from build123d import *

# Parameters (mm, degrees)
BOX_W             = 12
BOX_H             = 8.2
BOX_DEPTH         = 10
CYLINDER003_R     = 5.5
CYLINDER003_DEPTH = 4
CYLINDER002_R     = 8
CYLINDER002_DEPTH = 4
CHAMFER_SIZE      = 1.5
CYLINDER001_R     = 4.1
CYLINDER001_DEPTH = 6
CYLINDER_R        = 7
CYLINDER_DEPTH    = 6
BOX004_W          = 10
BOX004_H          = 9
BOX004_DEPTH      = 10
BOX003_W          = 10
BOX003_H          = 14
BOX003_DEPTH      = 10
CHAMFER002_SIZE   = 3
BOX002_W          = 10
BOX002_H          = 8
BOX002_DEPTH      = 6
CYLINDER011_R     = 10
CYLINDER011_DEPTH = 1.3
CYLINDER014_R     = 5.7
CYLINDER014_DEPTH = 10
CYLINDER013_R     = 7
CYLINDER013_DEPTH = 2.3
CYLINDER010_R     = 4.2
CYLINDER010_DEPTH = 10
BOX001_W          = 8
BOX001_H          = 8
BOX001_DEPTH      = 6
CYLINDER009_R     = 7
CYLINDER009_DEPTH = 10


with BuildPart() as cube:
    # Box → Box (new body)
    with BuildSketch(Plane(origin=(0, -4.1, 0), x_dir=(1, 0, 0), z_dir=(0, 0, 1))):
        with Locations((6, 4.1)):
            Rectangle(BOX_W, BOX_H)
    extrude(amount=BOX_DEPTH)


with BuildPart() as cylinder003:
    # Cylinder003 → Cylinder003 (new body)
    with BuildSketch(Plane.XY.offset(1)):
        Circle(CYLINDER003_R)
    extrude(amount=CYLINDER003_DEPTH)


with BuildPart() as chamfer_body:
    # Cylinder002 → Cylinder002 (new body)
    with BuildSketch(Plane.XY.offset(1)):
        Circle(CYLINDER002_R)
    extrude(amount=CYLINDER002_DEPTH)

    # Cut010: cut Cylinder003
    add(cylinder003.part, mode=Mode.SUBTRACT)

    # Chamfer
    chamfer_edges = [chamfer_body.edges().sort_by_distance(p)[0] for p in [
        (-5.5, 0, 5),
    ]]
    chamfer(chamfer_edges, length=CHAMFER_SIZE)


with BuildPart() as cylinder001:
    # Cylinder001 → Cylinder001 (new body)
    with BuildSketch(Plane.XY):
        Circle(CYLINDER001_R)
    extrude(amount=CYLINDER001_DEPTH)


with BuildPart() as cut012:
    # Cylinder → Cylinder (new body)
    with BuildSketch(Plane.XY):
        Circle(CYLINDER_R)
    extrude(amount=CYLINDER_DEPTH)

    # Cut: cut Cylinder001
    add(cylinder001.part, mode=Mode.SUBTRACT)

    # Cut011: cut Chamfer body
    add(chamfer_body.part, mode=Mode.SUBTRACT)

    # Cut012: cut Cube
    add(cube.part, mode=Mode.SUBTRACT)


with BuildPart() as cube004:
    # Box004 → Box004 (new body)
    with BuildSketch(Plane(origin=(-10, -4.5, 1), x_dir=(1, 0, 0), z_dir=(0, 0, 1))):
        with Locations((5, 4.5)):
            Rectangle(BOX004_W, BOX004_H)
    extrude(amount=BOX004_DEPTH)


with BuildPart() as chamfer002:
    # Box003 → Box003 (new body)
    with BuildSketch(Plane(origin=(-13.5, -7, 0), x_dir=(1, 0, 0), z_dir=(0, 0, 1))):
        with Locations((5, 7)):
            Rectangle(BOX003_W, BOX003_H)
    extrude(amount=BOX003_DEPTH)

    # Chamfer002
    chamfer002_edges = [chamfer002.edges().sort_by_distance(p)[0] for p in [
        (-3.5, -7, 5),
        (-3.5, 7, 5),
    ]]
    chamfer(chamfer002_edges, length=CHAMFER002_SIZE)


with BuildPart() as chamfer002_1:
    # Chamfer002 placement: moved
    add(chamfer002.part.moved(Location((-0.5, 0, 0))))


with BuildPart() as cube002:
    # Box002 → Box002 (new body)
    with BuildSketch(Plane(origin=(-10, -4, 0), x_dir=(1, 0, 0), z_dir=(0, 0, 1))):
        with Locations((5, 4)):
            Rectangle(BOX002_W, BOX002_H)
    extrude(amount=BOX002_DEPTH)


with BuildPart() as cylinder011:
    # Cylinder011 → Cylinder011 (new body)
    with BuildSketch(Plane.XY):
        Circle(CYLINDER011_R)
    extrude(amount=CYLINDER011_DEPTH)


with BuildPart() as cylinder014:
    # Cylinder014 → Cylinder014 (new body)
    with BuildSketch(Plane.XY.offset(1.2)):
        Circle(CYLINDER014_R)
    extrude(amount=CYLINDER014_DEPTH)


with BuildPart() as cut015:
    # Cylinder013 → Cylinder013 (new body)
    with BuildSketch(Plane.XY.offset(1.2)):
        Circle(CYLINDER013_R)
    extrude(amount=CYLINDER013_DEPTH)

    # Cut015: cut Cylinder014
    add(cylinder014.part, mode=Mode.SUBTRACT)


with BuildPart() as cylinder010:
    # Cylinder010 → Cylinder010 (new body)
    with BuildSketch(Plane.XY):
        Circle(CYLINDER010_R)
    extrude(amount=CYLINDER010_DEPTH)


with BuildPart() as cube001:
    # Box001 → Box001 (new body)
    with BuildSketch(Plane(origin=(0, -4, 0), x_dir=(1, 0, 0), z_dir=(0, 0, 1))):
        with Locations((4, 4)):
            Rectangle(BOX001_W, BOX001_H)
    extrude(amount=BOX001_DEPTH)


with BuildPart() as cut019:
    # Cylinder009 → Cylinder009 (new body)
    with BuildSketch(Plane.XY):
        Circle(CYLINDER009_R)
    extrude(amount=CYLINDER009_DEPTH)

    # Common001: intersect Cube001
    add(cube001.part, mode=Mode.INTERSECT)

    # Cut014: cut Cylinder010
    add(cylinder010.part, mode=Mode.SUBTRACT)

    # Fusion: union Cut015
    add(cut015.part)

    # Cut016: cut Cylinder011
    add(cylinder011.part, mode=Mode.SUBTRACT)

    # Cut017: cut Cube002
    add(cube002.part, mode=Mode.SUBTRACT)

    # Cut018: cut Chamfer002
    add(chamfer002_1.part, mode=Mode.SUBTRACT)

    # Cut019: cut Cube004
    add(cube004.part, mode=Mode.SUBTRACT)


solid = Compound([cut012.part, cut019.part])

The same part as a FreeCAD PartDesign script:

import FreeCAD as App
import Part
import Sketcher

V = App.Vector
Q = App.Units.Quantity


def edges_at(feature, points):
    """Names of the edges that pass closest to the given points."""
    edges = feature.Shape.Edges
    near = lambda p: min(range(len(edges)), key=lambda i: edges[i].distToShape(Part.Vertex(*p))[0])
    return sorted({f"Edge{near(p) + 1}" for p in points})


def add_polygon(sketch, points):
    """Adds a closed chain of lines whose ends are joined by coincident constraints."""
    first, n = sketch.GeometryCount, len(points)
    for a, b in zip(points, points[1:] + points[:1]):
        sketch.addGeometry(Part.LineSegment(App.Vector(*a, 0), App.Vector(*b, 0)), False)
    for i in range(n):
        sketch.addConstraint(Sketcher.Constraint("Coincident", first + i, 2, first + (i + 1) % n, 1))

doc = App.newDocument("Part")
body = doc.addObject("PartDesign::Body", "Body")

# Sketch on XY plane
sketch1 = doc.addObject("Sketcher::SketchObject", "Sketch")
body.addObject(sketch1)
sketch1.AttachmentSupport = (doc.XY_Plane, [""])
sketch1.MapMode = "FlatFace"
add_polygon(sketch1, [(0, 4), (0, -4), (12, -4), (12, 4)])  # lines 0-3
sketch1.addConstraint(Sketcher.Constraint("Vertical", 0))
sketch1.addConstraint(Sketcher.Constraint("Horizontal", 1))
sketch1.addConstraint(Sketcher.Constraint("Vertical", 2))
sketch1.addConstraint(Sketcher.Constraint("Horizontal", 3))
sketch1.addConstraint(Sketcher.Constraint("Symmetric", 0, 2, 3, 2, -1, 1))
sketch1.addConstraint(Sketcher.Constraint("DistanceX", 1, 1, 1, 2, Q("12 mm")))
sketch1.addConstraint(Sketcher.Constraint("DistanceY", 0, 2, 0, 1, Q("8.2 mm")))
pad1 = doc.addObject("PartDesign::Pad", "Pad")
body.addObject(pad1)
pad1.Profile = sketch1
pad1.Length = 10
body2 = doc.addObject("PartDesign::Body", "Body001")

# Sketch on XY plane
sketch2 = doc.addObject("Sketcher::SketchObject", "Sketch001")
body2.addObject(sketch2)
sketch2.AttachmentSupport = (doc.getObject("XY_Plane001"), [""])
sketch2.MapMode = "FlatFace"
sketch2.AttachmentOffset = App.Placement(V(0, 0, 1), App.Rotation())
sketch2.addGeometry(Part.Circle(V(0, 0, 0), V(0, 0, 1), 6), False)
sketch2.addConstraint(Sketcher.Constraint("Coincident", 0, 3, -1, 1))
sketch2.addConstraint(Sketcher.Constraint("Diameter", 0, Q("11 mm")))
pad2 = doc.addObject("PartDesign::Pad", "Pad001")
body2.addObject(pad2)
pad2.Profile = sketch2
pad2.Length = 4
body3 = doc.addObject("PartDesign::Body", "Body002")

# Sketch on XY plane
sketch3 = doc.addObject("Sketcher::SketchObject", "Sketch002")
body3.addObject(sketch3)
sketch3.AttachmentSupport = (doc.getObject("XY_Plane002"), [""])
sketch3.MapMode = "FlatFace"
sketch3.AttachmentOffset = App.Placement(V(0, 0, 1), App.Rotation())
sketch3.addGeometry(Part.Circle(V(0, 0, 0), V(0, 0, 1), 8), False)
sketch3.addConstraint(Sketcher.Constraint("Coincident", 0, 3, -1, 1))
sketch3.addConstraint(Sketcher.Constraint("Diameter", 0, Q("16 mm")))
pad3 = doc.addObject("PartDesign::Pad", "Pad002")
body3.addObject(pad3)
pad3.Profile = sketch3
pad3.Length = 4
doc.recompute()

boolean = doc.addObject("PartDesign::Boolean", "Boolean")
body3.addObject(boolean)
boolean.Type = "Cut"
boolean.addObjects([body2])
doc.recompute()

chamfer = doc.addObject("PartDesign::Chamfer", "Chamfer")
body3.addObject(chamfer)
chamfer.Base = (boolean, edges_at(boolean, [(-5.5, 0, 5)]))
chamfer.Size = 1.5
body4 = doc.addObject("PartDesign::Body", "Body003")

# Sketch on XY plane
sketch4 = doc.addObject("Sketcher::SketchObject", "Sketch003")
body4.addObject(sketch4)
sketch4.AttachmentSupport = (doc.getObject("XY_Plane003"), [""])
sketch4.MapMode = "FlatFace"
sketch4.addGeometry(Part.Circle(V(0, 0, 0), V(0, 0, 1), 4.1), False)
sketch4.addConstraint(Sketcher.Constraint("Coincident", 0, 3, -1, 1))
sketch4.addConstraint(Sketcher.Constraint("Diameter", 0, Q("8.2 mm")))
pad4 = doc.addObject("PartDesign::Pad", "Pad003")
body4.addObject(pad4)
pad4.Profile = sketch4
pad4.Length = 6
body5 = doc.addObject("PartDesign::Body", "Body004")

# Sketch on XY plane
sketch5 = doc.addObject("Sketcher::SketchObject", "Sketch004")
body5.addObject(sketch5)
sketch5.AttachmentSupport = (doc.getObject("XY_Plane004"), [""])
sketch5.MapMode = "FlatFace"
sketch5.addGeometry(Part.Circle(V(0, 0, 0), V(0, 0, 1), 7), False)
sketch5.addConstraint(Sketcher.Constraint("Coincident", 0, 3, -1, 1))
sketch5.addConstraint(Sketcher.Constraint("Diameter", 0, Q("14 mm")))
pad5 = doc.addObject("PartDesign::Pad", "Pad004")
body5.addObject(pad5)
pad5.Profile = sketch5
pad5.Length = 6
doc.recompute()

boolean2 = doc.addObject("PartDesign::Boolean", "Boolean001")
body5.addObject(boolean2)
boolean2.Type = "Cut"
boolean2.addObjects([body4])
doc.recompute()

boolean3 = doc.addObject("PartDesign::Boolean", "Boolean002")
body5.addObject(boolean3)
boolean3.Type = "Cut"
boolean3.addObjects([body3])
doc.recompute()

boolean4 = doc.addObject("PartDesign::Boolean", "Boolean003")
body5.addObject(boolean4)
boolean4.Type = "Cut"
boolean4.addObjects([body])
body6 = doc.addObject("PartDesign::Body", "Body005")

# Sketch on XY plane
sketch6 = doc.addObject("Sketcher::SketchObject", "Sketch005")
body6.addObject(sketch6)
sketch6.AttachmentSupport = (doc.getObject("XY_Plane005"), [""])
sketch6.MapMode = "FlatFace"
sketch6.AttachmentOffset = App.Placement(V(0, 0, 1), App.Rotation())
add_polygon(sketch6, [(-10, 4), (-10, -4), (0, -4), (0, 4)])  # lines 0-3
sketch6.addConstraint(Sketcher.Constraint("Vertical", 0))
sketch6.addConstraint(Sketcher.Constraint("Horizontal", 1))
sketch6.addConstraint(Sketcher.Constraint("Vertical", 2))
sketch6.addConstraint(Sketcher.Constraint("Horizontal", 3))
sketch6.addConstraint(Sketcher.Constraint("Symmetric", 1, 2, 2, 2, -1, 1))
sketch6.addConstraint(Sketcher.Constraint("DistanceX", 1, 1, 1, 2, Q("10 mm")))
sketch6.addConstraint(Sketcher.Constraint("DistanceY", 0, 2, 0, 1, Q("9 mm")))
pad6 = doc.addObject("PartDesign::Pad", "Pad005")
body6.addObject(pad6)
pad6.Profile = sketch6
pad6.Length = 10
body7 = doc.addObject("PartDesign::Body", "Body006")

# Sketch on XY plane
sketch7 = doc.addObject("Sketcher::SketchObject", "Sketch006")
body7.addObject(sketch7)
sketch7.AttachmentSupport = (doc.getObject("XY_Plane006"), [""])
sketch7.MapMode = "FlatFace"
add_polygon(sketch7, [(-14, 7), (-14, -7), (-4, -7), (-4, 7)])  # lines 0-3
sketch7.addConstraint(Sketcher.Constraint("Vertical", 0))
sketch7.addConstraint(Sketcher.Constraint("Horizontal", 1))
sketch7.addConstraint(Sketcher.Constraint("Vertical", 2))
sketch7.addConstraint(Sketcher.Constraint("Horizontal", 3))
sketch7.addConstraint(Sketcher.Constraint("DistanceX", 1, 1, 1, 2, Q("10 mm")))
sketch7.addConstraint(Sketcher.Constraint("DistanceY", 0, 2, 0, 1, Q("14 mm")))
sketch7.addConstraint(Sketcher.Constraint("DistanceY", 0, 2, -1, 1, Q("7 mm")))
sketch7.addConstraint(Sketcher.Constraint("DistanceX", 0, 2, -1, 1, Q("13.5 mm")))
pad7 = doc.addObject("PartDesign::Pad", "Pad006")
body7.addObject(pad7)
pad7.Profile = sketch7
pad7.Length = 10
doc.recompute()

chamfer2 = doc.addObject("PartDesign::Chamfer", "Chamfer001")
body7.addObject(chamfer2)
chamfer2.Base = (pad7, edges_at(pad7, [(-3.5, -7, 5), (-3.5, 7, 5)]))
chamfer2.Size = 3
body8 = doc.addObject("PartDesign::Body", "Body007")
doc.recompute()

body7.Placement = App.Placement(V(-0.5, 0, 0), App.Rotation(V(0, 0, 1), 0))
boolean5 = doc.addObject("PartDesign::Boolean", "Boolean004")
body8.addObject(boolean5)
boolean5.Type = "Fuse"
boolean5.addObjects([body7])
body9 = doc.addObject("PartDesign::Body", "Body008")

# Sketch on XY plane
sketch8 = doc.addObject("Sketcher::SketchObject", "Sketch007")
body9.addObject(sketch8)
sketch8.AttachmentSupport = (doc.getObject("XY_Plane008"), [""])
sketch8.MapMode = "FlatFace"
add_polygon(sketch8, [(-10, 4), (-10, -4), (0, -4), (0, 4)])  # lines 0-3
sketch8.addConstraint(Sketcher.Constraint("Vertical", 0))
sketch8.addConstraint(Sketcher.Constraint("Horizontal", 1))
sketch8.addConstraint(Sketcher.Constraint("Vertical", 2))
sketch8.addConstraint(Sketcher.Constraint("Horizontal", 3))
sketch8.addConstraint(Sketcher.Constraint("Symmetric", 1, 2, 2, 2, -1, 1))
sketch8.addConstraint(Sketcher.Constraint("DistanceX", 1, 1, 1, 2, Q("10 mm")))
sketch8.addConstraint(Sketcher.Constraint("DistanceY", 0, 2, 0, 1, Q("8 mm")))
pad8 = doc.addObject("PartDesign::Pad", "Pad007")
body9.addObject(pad8)
pad8.Profile = sketch8
pad8.Length = 6
body10 = doc.addObject("PartDesign::Body", "Body009")

# Sketch on XY plane
sketch9 = doc.addObject("Sketcher::SketchObject", "Sketch008")
body10.addObject(sketch9)
sketch9.AttachmentSupport = (doc.getObject("XY_Plane009"), [""])
sketch9.MapMode = "FlatFace"
sketch9.addGeometry(Part.Circle(V(0, 0, 0), V(0, 0, 1), 10), False)
sketch9.addConstraint(Sketcher.Constraint("Coincident", 0, 3, -1, 1))
sketch9.addConstraint(Sketcher.Constraint("Diameter", 0, Q("20 mm")))
pad9 = doc.addObject("PartDesign::Pad", "Pad008")
body10.addObject(pad9)
pad9.Profile = sketch9
pad9.Length = 1.3
body11 = doc.addObject("PartDesign::Body", "Body010")

# Sketch on XY plane
sketch10 = doc.addObject("Sketcher::SketchObject", "Sketch009")
body11.addObject(sketch10)
sketch10.AttachmentSupport = (doc.getObject("XY_Plane010"), [""])
sketch10.MapMode = "FlatFace"
sketch10.AttachmentOffset = App.Placement(V(0, 0, 1.2), App.Rotation())
sketch10.addGeometry(Part.Circle(V(0, 0, 0), V(0, 0, 1), 6), False)
sketch10.addConstraint(Sketcher.Constraint("Coincident", 0, 3, -1, 1))
sketch10.addConstraint(Sketcher.Constraint("Diameter", 0, Q("11.4 mm")))
pad10 = doc.addObject("PartDesign::Pad", "Pad009")
body11.addObject(pad10)
pad10.Profile = sketch10
pad10.Length = 10
body12 = doc.addObject("PartDesign::Body", "Body011")

# Sketch on XY plane
sketch11 = doc.addObject("Sketcher::SketchObject", "Sketch010")
body12.addObject(sketch11)
sketch11.AttachmentSupport = (doc.getObject("XY_Plane011"), [""])
sketch11.MapMode = "FlatFace"
sketch11.AttachmentOffset = App.Placement(V(0, 0, 1.2), App.Rotation())
sketch11.addGeometry(Part.Circle(V(0, 0, 0), V(0, 0, 1), 7), False)
sketch11.addConstraint(Sketcher.Constraint("Coincident", 0, 3, -1, 1))
sketch11.addConstraint(Sketcher.Constraint("Diameter", 0, Q("14 mm")))
pad11 = doc.addObject("PartDesign::Pad", "Pad010")
body12.addObject(pad11)
pad11.Profile = sketch11
pad11.Length = 2.3
doc.recompute()

boolean6 = doc.addObject("PartDesign::Boolean", "Boolean005")
body12.addObject(boolean6)
boolean6.Type = "Cut"
boolean6.addObjects([body11])
body13 = doc.addObject("PartDesign::Body", "Body012")

# Sketch on XY plane
sketch12 = doc.addObject("Sketcher::SketchObject", "Sketch011")
body13.addObject(sketch12)
sketch12.AttachmentSupport = (doc.getObject("XY_Plane012"), [""])
sketch12.MapMode = "FlatFace"
sketch12.addGeometry(Part.Circle(V(0, 0, 0), V(0, 0, 1), 4.2), False)
sketch12.addConstraint(Sketcher.Constraint("Coincident", 0, 3, -1, 1))
sketch12.addConstraint(Sketcher.Constraint("Diameter", 0, Q("8.4 mm")))
pad12 = doc.addObject("PartDesign::Pad", "Pad011")
body13.addObject(pad12)
pad12.Profile = sketch12
pad12.Length = 10
body14 = doc.addObject("PartDesign::Body", "Body013")

# Sketch on XY plane
sketch13 = doc.addObject("Sketcher::SketchObject", "Sketch012")
body14.addObject(sketch13)
sketch13.AttachmentSupport = (doc.getObject("XY_Plane013"), [""])
sketch13.MapMode = "FlatFace"
add_polygon(sketch13, [(0, 4), (0, -4), (8, -4), (8, 4)])  # lines 0-3
sketch13.addConstraint(Sketcher.Constraint("Vertical", 0))
sketch13.addConstraint(Sketcher.Constraint("Horizontal", 1))
sketch13.addConstraint(Sketcher.Constraint("Vertical", 2))
sketch13.addConstraint(Sketcher.Constraint("Horizontal", 3))
sketch13.addConstraint(Sketcher.Constraint("Symmetric", 0, 2, 3, 2, -1, 1))
sketch13.addConstraint(Sketcher.Constraint("Equal", 3, 0))
sketch13.addConstraint(Sketcher.Constraint("DistanceX", 1, 1, 1, 2, Q("8 mm")))
pad13 = doc.addObject("PartDesign::Pad", "Pad012")
body14.addObject(pad13)
pad13.Profile = sketch13
pad13.Length = 6
body15 = doc.addObject("PartDesign::Body", "Body014")

# Sketch on XY plane
sketch14 = doc.addObject("Sketcher::SketchObject", "Sketch013")
body15.addObject(sketch14)
sketch14.AttachmentSupport = (doc.getObject("XY_Plane014"), [""])
sketch14.MapMode = "FlatFace"
sketch14.addGeometry(Part.Circle(V(0, 0, 0), V(0, 0, 1), 7), False)
sketch14.addConstraint(Sketcher.Constraint("Coincident", 0, 3, -1, 1))
sketch14.addConstraint(Sketcher.Constraint("Diameter", 0, Q("14 mm")))
pad14 = doc.addObject("PartDesign::Pad", "Pad013")
body15.addObject(pad14)
pad14.Profile = sketch14
pad14.Length = 10
doc.recompute()

boolean7 = doc.addObject("PartDesign::Boolean", "Boolean006")
body15.addObject(boolean7)
boolean7.Type = "Common"
boolean7.addObjects([body14])
doc.recompute()

boolean8 = doc.addObject("PartDesign::Boolean", "Boolean007")
body15.addObject(boolean8)
boolean8.Type = "Cut"
boolean8.addObjects([body13])
doc.recompute()

boolean9 = doc.addObject("PartDesign::Boolean", "Boolean008")
body15.addObject(boolean9)
boolean9.Type = "Fuse"
boolean9.addObjects([body12])
doc.recompute()

boolean10 = doc.addObject("PartDesign::Boolean", "Boolean009")
body15.addObject(boolean10)
boolean10.Type = "Cut"
boolean10.addObjects([body10])
doc.recompute()

boolean11 = doc.addObject("PartDesign::Boolean", "Boolean010")
body15.addObject(boolean11)
boolean11.Type = "Cut"
boolean11.addObjects([body9])
doc.recompute()

boolean12 = doc.addObject("PartDesign::Boolean", "Boolean011")
body15.addObject(boolean12)
boolean12.Type = "Cut"
boolean12.addObjects([body8])
doc.recompute()

boolean13 = doc.addObject("PartDesign::Boolean", "Boolean012")
body15.addObject(boolean13)
boolean13.Type = "Cut"
boolean13.addObjects([body6])

doc.recompute()
